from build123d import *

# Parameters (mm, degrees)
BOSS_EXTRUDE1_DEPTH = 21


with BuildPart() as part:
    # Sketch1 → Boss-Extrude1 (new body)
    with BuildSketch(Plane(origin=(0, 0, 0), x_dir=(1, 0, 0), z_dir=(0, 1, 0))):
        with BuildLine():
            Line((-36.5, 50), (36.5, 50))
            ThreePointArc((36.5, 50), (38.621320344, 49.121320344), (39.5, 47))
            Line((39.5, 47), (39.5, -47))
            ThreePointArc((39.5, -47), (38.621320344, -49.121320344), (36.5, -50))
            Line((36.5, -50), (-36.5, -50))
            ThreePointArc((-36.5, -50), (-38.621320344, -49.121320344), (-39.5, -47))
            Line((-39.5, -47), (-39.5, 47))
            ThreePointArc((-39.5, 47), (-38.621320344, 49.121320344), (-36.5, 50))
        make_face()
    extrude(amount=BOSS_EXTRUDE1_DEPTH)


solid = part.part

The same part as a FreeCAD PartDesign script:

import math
import FreeCAD as App
import Part
import Sketcher

V = App.Vector
Q = App.Units.Quantity

doc = App.newDocument("Part")
body = doc.addObject("PartDesign::Body", "Body")

# Sketch on XZ plane
sketch1 = body.newObject("Sketcher::SketchObject", "Sketch")
sketch1.AttachmentSupport = (doc.getObject("XZ_Plane"), [""])
sketch1.MapMode = "FlatFace"
sketch1.addGeometry([
    Part.LineSegment(V(36.5, -50, 0), V(-36.5, -50, 0)),  # 0
    Part.ArcOfCircle(Part.Circle(V(-36.5, -47, 0), V(0, 0, 1), 3), math.radians(180), math.radians(270)),  # 1
    Part.LineSegment(V(-39.5, -47, 0), V(-39.5, 47, 0)),  # 2
    Part.ArcOfCircle(Part.Circle(V(-36.5, 47, 0), V(0, 0, 1), 3), math.radians(90), math.radians(180)),  # 3
    Part.LineSegment(V(-36.5, 50, 0), V(36.5, 50, 0)),  # 4
    Part.ArcOfCircle(Part.Circle(V(36.5, 47, 0), V(0, 0, 1), 3), math.radians(0), math.radians(90)),  # 5
    Part.LineSegment(V(39.5, 47, 0), V(39.5, -47, 0)),  # 6
    Part.ArcOfCircle(Part.Circle(V(36.5, -47, 0), V(0, 0, 1), 3), math.radians(-90), math.radians(0)),  # 7
], False)
sketch1.addConstraint([
    Sketcher.Constraint("Tangent", 0, 2, 1, 2),
    Sketcher.Constraint("Tangent", 1, 1, 2, 1),
    Sketcher.Constraint("Tangent", 2, 2, 3, 2),
    Sketcher.Constraint("Tangent", 3, 1, 4, 1),
    Sketcher.Constraint("Tangent", 4, 2, 5, 2),
    Sketcher.Constraint("Tangent", 5, 1, 6, 1),
    Sketcher.Constraint("Tangent", 6, 2, 7, 2),
    Sketcher.Constraint("Tangent", 7, 1, 0, 1),
    Sketcher.Constraint("Horizontal", 0),
    Sketcher.Constraint("Vertical", 2),
    Sketcher.Constraint("Horizontal", 4),
    Sketcher.Constraint("Vertical", 6),
    Sketcher.Constraint("Equal", 1, 3),
    Sketcher.Constraint("Equal", 3, 5),
    Sketcher.Constraint("Equal", 5, 7),
    Sketcher.Constraint("Symmetric", 1, 3, 5, 3, -1, 1),
    Sketcher.Constraint("Radius", 1, Q("3 mm")),
    Sketcher.Constraint("DistanceX", 0, 2, 0, 1, Q("73 mm")),
    Sketcher.Constraint("DistanceY", 2, 1, 2, 2, Q("94 mm")),
])
pad1 = body.newObject("PartDesign::Pad", "Pad")
pad1.Profile = sketch1
pad1.Length = 21
pad1.Reversed = True

doc.recompute()
